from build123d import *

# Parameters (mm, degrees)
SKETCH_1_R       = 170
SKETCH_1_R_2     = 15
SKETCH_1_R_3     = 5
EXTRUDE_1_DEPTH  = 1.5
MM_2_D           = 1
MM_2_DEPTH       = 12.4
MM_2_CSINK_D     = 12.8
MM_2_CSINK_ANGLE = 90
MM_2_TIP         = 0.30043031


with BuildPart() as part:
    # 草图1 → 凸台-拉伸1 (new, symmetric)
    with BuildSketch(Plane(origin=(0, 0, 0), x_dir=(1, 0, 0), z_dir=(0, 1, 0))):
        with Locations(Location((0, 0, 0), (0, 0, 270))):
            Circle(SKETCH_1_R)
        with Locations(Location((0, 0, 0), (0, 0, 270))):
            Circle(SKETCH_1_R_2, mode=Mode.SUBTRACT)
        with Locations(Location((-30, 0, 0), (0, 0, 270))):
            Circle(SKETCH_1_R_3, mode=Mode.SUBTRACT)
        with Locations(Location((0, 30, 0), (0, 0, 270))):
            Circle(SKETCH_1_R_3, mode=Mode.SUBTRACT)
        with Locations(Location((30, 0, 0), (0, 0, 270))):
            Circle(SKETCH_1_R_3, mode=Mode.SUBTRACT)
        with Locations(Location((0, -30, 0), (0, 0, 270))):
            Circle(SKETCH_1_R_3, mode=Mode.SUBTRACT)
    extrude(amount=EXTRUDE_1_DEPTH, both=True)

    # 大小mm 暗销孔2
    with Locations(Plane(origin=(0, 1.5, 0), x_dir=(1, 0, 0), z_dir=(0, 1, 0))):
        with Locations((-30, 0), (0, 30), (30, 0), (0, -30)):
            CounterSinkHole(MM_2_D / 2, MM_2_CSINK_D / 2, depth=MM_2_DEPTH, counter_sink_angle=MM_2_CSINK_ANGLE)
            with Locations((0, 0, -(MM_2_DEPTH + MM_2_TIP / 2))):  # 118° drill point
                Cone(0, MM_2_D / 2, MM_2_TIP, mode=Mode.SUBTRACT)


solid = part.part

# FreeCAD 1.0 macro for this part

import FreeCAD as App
import Part
import Sketcher
from FreeCAD import Vector
Q = App.Units.Quantity

doc = App.newDocument("Part")
body = doc.addObject("PartDesign::Body", "Body")

sketch1 = body.newObject("Sketcher::SketchObject", "Sketch")
sketch1.AttachmentSupport = (doc.getObject("XZ_Plane"), [""])
sketch1.MapMode = "FlatFace"
sketch1.addGeometry([
    Part.Circle(Vector(0, 0, 0), Vector(0, 0, 1), 170),
    Part.Circle(Vector(0, -30, 0), Vector(0, 0, 1), 5),
    Part.Circle(Vector(-30, 0, 0), Vector(0, 0, 1), 5),
    Part.Circle(Vector(30, 0, 0), Vector(0, 0, 1), 5),
    Part.Circle(Vector(0, 0, 0), Vector(0, 0, 1), 15),
    Part.Circle(Vector(0, 30, 0), Vector(0, 0, 1), 5),
], False)
sketch1.addConstraint([
    Sketcher.Constraint("Coincident", 0, 3, -1, 1),
    Sketcher.Constraint("Coincident", 4, 3, -1, 1),
    Sketcher.Constraint("Equal", 1, 2),
    Sketcher.Constraint("Equal", 2, 3),
    Sketcher.Constraint("Equal", 3, 5),
    Sketcher.Constraint("Symmetric", 2, 3, 3, 3, -1, 1),
    Sketcher.Constraint("Symmetric", 1, 3, 5, 3, -1, 1),
    Sketcher.Constraint("PointOnObject", 1, 3, -2),
    Sketcher.Constraint("PointOnObject", 2, 3, -1),
    Sketcher.Constraint("Diameter", 0, Q("340 mm")),
    Sketcher.Constraint("Diameter", 1, Q("10 mm")),
    Sketcher.Constraint("Diameter", 4, Q("30 mm")),
    Sketcher.Constraint("DistanceY", 1, 3, -1, 1, Q("30 mm")),
    Sketcher.Constraint("DistanceX", 2, 3, -1, 1, Q("30 mm")),
])
pad1 = body.newObject("PartDesign::Pad", "Pad")
pad1.Profile = sketch1
pad1.Length = 3
pad1.Midplane = True

sketch2 = body.newObject("Sketcher::SketchObject", "Sketch001")
sketch2.AttachmentSupport = (doc.getObject("XZ_Plane"), [""])
sketch2.MapMode = "FlatFace"
sketch2.AttachmentOffset = App.Placement(Vector(0, 0, -1.5), App.Rotation())
sketch2.addGeometry([
    Part.Circle(Vector(-30, 0, 0), Vector(0, 0, 1), 0.5),
    Part.Circle(Vector(0, -30, 0), Vector(0, 0, 1), 0.5),
    Part.Circle(Vector(30, 0, 0), Vector(0, 0, 1), 0.5),
    Part.Circle(Vector(0, 30, 0), Vector(0, 0, 1), 0.5),
], False)
sketch2.addConstraint([
    Sketcher.Constraint("Equal", 0, 1),
    Sketcher.Constraint("Equal", 1, 2),
    Sketcher.Constraint("Equal", 2, 3),
    Sketcher.Constraint("Symmetric", 0, 3, 2, 3, -1, 1),
    Sketcher.Constraint("Symmetric", 1, 3, 3, 3, -1, 1),
    Sketcher.Constraint("PointOnObject", 0, 3, -1),
    Sketcher.Constraint("PointOnObject", 1, 3, -2),
    Sketcher.Constraint("Diameter", 0, Q("1 mm")),
    Sketcher.Constraint("DistanceX", 0, 3, -1, 1, Q("30 mm")),
    Sketcher.Constraint("DistanceY", 1, 3, -1, 1, Q("30 mm")),
])
doc.recompute()
hole = body.newObject("PartDesign::Hole", "Hole")
hole.Profile = sketch2
hole.ThreadType = "None"
hole.Diameter = 1
hole.DepthType = "Dimension"
hole.Depth = 12.4
hole.DrillPoint = "Angled"
hole.DrillPointAngle = 118
hole.HoleCutType = "Countersink"
hole.HoleCutDiameter = 12.8
hole.HoleCutCountersinkAngle = 90
hole.Reversed = True

doc.recompute()
